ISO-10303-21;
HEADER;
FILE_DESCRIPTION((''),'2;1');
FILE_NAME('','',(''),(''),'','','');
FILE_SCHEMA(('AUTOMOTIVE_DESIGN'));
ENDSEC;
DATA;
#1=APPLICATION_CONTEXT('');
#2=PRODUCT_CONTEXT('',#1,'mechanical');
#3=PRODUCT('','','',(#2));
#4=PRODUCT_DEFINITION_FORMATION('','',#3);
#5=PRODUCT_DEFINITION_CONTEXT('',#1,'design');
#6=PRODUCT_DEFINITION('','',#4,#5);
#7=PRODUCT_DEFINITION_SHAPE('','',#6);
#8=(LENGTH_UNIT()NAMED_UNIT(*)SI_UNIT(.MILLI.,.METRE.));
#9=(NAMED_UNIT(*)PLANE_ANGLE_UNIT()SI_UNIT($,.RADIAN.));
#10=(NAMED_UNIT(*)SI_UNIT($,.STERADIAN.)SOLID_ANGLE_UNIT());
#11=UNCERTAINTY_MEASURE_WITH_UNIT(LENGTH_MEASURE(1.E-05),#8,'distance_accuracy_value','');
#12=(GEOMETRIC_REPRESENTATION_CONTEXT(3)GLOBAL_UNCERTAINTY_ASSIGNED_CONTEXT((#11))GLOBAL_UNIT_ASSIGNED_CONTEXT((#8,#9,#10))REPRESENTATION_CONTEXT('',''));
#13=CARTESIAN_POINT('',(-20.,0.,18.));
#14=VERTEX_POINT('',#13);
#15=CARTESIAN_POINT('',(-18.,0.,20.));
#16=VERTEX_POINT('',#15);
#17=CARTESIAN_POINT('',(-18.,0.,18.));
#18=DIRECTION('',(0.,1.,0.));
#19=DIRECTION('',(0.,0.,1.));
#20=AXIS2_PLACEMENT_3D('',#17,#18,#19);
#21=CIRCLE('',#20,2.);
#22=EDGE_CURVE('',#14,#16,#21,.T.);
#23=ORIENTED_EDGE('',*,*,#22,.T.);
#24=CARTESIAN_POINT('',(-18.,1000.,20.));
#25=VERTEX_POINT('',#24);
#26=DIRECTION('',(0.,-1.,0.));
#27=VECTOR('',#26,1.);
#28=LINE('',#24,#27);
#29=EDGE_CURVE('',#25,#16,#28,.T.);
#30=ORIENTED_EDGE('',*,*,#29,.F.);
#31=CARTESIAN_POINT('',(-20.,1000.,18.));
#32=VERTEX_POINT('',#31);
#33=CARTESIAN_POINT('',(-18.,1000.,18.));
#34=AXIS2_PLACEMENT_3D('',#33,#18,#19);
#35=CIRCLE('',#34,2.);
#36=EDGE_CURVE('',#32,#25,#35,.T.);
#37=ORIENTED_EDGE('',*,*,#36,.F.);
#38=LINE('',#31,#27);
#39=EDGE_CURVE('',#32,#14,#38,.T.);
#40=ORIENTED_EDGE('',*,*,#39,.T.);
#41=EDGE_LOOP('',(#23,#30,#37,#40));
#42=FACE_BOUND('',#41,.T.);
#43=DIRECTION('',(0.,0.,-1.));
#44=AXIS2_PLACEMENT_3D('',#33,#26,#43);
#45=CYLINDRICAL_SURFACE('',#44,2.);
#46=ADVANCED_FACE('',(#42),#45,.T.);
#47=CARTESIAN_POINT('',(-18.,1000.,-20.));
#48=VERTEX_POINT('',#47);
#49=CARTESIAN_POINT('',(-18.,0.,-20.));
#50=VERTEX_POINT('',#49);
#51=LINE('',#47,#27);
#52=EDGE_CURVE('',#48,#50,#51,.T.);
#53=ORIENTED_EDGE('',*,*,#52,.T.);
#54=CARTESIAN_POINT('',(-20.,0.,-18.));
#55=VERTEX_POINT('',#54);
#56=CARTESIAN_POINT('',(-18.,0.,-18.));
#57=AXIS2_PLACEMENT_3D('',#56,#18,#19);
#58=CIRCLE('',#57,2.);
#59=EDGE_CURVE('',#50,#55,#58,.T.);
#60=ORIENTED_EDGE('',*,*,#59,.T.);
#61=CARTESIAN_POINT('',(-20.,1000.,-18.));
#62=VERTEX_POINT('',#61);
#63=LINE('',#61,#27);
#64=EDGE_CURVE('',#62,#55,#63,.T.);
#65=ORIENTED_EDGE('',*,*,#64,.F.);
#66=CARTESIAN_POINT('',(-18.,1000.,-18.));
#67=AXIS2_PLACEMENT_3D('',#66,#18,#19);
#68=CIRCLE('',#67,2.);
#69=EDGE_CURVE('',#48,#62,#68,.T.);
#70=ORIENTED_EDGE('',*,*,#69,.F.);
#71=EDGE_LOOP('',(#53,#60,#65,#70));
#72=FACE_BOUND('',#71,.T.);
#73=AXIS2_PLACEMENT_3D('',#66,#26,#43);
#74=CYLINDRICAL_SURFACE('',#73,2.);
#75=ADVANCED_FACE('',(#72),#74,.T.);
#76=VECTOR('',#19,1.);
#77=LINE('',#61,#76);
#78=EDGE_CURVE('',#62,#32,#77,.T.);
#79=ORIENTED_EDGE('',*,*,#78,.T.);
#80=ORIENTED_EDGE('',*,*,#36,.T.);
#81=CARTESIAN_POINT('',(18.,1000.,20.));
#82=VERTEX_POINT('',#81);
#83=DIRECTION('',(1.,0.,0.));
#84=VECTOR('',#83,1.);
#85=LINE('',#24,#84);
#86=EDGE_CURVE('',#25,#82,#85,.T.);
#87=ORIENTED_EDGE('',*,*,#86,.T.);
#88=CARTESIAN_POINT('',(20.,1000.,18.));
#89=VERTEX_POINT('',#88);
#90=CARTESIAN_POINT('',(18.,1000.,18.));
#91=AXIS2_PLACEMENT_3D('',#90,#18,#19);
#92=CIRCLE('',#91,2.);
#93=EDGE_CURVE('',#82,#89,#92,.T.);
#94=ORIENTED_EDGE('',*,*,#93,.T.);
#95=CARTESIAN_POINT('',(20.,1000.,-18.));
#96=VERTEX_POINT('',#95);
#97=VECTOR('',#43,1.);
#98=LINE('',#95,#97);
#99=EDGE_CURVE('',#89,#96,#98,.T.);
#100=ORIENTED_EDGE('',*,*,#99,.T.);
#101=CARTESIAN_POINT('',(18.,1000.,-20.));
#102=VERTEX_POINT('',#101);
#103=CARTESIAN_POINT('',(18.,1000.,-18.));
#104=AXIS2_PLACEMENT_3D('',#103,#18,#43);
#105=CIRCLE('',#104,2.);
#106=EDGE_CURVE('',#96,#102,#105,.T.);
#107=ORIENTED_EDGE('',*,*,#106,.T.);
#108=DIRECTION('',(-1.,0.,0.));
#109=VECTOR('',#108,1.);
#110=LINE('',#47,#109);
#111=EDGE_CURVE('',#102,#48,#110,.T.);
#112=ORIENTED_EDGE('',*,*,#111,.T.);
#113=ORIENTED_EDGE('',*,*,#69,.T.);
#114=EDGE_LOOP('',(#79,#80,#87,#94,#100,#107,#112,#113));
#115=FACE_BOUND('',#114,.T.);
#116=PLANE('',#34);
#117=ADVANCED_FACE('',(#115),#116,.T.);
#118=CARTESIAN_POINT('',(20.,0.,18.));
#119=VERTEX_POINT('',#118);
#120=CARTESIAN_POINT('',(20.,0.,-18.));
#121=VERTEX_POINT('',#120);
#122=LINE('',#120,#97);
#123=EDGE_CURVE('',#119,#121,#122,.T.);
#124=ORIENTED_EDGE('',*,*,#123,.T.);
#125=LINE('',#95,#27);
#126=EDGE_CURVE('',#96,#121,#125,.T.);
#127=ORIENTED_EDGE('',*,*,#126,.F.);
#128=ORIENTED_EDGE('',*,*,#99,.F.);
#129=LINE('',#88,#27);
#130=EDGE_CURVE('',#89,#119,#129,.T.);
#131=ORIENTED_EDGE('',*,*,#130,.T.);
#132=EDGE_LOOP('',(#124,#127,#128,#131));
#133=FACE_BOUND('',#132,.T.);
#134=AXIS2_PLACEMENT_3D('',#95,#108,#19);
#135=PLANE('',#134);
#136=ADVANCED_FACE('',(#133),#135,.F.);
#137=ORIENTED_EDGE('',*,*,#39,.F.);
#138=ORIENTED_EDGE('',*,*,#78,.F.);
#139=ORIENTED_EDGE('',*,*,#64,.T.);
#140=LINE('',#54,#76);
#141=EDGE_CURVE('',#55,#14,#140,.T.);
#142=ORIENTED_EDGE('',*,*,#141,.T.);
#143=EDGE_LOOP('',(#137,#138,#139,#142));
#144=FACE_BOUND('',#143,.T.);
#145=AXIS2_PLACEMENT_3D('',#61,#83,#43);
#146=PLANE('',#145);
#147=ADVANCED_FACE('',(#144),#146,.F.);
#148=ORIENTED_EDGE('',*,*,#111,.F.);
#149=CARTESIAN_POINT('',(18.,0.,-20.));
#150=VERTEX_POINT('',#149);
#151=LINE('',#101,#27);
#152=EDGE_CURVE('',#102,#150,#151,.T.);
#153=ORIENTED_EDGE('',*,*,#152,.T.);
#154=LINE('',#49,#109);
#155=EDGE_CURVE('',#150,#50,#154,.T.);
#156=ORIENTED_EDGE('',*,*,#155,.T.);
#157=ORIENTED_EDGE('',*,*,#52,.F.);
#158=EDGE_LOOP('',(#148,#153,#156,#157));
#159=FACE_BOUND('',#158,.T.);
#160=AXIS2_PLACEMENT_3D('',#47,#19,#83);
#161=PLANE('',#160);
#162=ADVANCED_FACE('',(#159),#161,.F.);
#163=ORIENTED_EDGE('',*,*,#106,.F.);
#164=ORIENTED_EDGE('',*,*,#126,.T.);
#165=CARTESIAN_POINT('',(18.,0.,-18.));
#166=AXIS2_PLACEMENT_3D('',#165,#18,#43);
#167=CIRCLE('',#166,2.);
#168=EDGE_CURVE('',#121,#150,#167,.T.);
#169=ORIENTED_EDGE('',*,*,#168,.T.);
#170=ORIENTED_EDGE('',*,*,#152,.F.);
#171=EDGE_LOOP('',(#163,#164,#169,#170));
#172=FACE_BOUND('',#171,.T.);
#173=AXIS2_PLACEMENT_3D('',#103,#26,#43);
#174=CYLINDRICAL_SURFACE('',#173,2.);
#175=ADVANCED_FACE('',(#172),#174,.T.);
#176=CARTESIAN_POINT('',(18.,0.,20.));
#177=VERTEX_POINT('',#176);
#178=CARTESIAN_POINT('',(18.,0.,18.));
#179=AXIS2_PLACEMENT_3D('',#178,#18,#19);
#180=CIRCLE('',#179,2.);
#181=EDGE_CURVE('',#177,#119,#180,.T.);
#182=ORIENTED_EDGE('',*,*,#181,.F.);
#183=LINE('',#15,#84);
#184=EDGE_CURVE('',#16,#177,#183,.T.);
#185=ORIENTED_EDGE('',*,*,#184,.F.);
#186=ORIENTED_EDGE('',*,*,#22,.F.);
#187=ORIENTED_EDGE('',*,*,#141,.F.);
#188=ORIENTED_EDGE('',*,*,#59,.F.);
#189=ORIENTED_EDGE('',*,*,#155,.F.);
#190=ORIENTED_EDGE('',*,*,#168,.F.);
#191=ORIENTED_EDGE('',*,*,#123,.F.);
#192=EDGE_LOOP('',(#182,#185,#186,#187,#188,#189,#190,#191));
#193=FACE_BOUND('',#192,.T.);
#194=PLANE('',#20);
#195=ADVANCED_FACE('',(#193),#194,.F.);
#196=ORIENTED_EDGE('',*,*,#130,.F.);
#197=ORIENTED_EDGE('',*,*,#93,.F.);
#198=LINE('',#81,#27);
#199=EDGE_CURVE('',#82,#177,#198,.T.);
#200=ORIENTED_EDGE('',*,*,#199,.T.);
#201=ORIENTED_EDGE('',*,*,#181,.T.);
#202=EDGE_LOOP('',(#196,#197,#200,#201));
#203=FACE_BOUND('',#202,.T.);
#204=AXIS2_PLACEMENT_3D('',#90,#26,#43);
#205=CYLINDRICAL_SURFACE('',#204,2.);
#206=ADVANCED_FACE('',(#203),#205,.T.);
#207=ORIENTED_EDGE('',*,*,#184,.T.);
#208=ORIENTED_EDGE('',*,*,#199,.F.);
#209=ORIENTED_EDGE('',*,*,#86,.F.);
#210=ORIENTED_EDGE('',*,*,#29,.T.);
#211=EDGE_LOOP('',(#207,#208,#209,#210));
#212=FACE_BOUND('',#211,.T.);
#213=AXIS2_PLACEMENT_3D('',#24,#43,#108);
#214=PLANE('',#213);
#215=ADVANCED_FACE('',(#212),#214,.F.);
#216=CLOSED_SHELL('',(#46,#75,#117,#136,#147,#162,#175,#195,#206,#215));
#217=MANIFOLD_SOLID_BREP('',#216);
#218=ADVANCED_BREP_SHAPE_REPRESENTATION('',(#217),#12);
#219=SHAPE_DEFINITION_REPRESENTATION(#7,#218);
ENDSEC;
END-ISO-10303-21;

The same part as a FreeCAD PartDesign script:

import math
import FreeCAD as App
import Part
import Sketcher

doc = App.newDocument("Part")
body = doc.addObject("PartDesign::Body", "Body")

sketch1 = body.newObject("Sketcher::SketchObject", "Sketch")
sketch1.AttachmentSupport = (doc.getObject("XZ_Plane"), [""])
sketch1.MapMode = "FlatFace"
sketch1.addGeometry(Part.LineSegment(App.Vector(18, -20, 0), App.Vector(-18, -20, 0)), False)
sketch1.addGeometry(Part.ArcOfCircle(Part.Circle(App.Vector(-18, -18, 0), App.Vector(0, 0, 1), 2), math.radians(-180), math.radians(-90)), False)
sketch1.addGeometry(Part.LineSegment(App.Vector(-20, -18, 0), App.Vector(-20, 18, 0)), False)
sketch1.addGeometry(Part.ArcOfCircle(Part.Circle(App.Vector(-18, 18, 0), App.Vector(0, 0, 1), 2), math.radians(90), math.radians(180)), False)
sketch1.addGeometry(Part.LineSegment(App.Vector(-18, 20, 0), App.Vector(18, 20, 0)), False)
sketch1.addGeometry(Part.ArcOfCircle(Part.Circle(App.Vector(18, 18, 0), App.Vector(0, 0, 1), 2), math.radians(0), math.radians(90)), False)
sketch1.addGeometry(Part.LineSegment(App.Vector(20, 18, 0), App.Vector(20, -18, 0)), False)
sketch1.addGeometry(Part.ArcOfCircle(Part.Circle(App.Vector(18, -18, 0), App.Vector(0, 0, 1), 2), math.radians(-90), math.radians(0)), False)
sketch1.addConstraint(Sketcher.Constraint("Tangent", 0, 2, 1, 2))
sketch1.addConstraint(Sketcher.Constraint("Tangent", 1, 1, 2, 1))
sketch1.addConstraint(Sketcher.Constraint("Tangent", 2, 2, 3, 2))
sketch1.addConstraint(Sketcher.Constraint("Tangent", 3, 1, 4, 1))
sketch1.addConstraint(Sketcher.Constraint("Tangent", 4, 2, 5, 2))
sketch1.addConstraint(Sketcher.Constraint("Tangent", 5, 1, 6, 1))
sketch1.addConstraint(Sketcher.Constraint("Tangent", 6, 2, 7, 2))
sketch1.addConstraint(Sketcher.Constraint("Tangent", 7, 1, 0, 1))
sketch1.addConstraint(Sketcher.Constraint("Horizontal", 0))
sketch1.addConstraint(Sketcher.Constraint("Vertical", 2))
sketch1.addConstraint(Sketcher.Constraint("Horizontal", 4))
sketch1.addConstraint(Sketcher.Constraint("Vertical", 6))
sketch1.addConstraint(Sketcher.Constraint("Equal", 1, 3))
sketch1.addConstraint(Sketcher.Constraint("Equal", 3, 5))
sketch1.addConstraint(Sketcher.Constraint("Equal", 5, 7))
sketch1.addConstraint(Sketcher.Constraint("Symmetric", 1, 3, 5, 3, -1, 1))
sketch1.addConstraint(Sketcher.Constraint("Equal", 4, 2))
sketch1.addConstraint(Sketcher.Constraint("Radius", 1, 2.0))
sketch1.addConstraint(Sketcher.Constraint("DistanceX", 0, 2, 0, 1, 36.0))
pad1 = body.newObject("PartDesign::Pad", "Pad")
pad1.Profile = sketch1
pad1.Length = 1000
pad1.Reversed = True

doc.recompute()
